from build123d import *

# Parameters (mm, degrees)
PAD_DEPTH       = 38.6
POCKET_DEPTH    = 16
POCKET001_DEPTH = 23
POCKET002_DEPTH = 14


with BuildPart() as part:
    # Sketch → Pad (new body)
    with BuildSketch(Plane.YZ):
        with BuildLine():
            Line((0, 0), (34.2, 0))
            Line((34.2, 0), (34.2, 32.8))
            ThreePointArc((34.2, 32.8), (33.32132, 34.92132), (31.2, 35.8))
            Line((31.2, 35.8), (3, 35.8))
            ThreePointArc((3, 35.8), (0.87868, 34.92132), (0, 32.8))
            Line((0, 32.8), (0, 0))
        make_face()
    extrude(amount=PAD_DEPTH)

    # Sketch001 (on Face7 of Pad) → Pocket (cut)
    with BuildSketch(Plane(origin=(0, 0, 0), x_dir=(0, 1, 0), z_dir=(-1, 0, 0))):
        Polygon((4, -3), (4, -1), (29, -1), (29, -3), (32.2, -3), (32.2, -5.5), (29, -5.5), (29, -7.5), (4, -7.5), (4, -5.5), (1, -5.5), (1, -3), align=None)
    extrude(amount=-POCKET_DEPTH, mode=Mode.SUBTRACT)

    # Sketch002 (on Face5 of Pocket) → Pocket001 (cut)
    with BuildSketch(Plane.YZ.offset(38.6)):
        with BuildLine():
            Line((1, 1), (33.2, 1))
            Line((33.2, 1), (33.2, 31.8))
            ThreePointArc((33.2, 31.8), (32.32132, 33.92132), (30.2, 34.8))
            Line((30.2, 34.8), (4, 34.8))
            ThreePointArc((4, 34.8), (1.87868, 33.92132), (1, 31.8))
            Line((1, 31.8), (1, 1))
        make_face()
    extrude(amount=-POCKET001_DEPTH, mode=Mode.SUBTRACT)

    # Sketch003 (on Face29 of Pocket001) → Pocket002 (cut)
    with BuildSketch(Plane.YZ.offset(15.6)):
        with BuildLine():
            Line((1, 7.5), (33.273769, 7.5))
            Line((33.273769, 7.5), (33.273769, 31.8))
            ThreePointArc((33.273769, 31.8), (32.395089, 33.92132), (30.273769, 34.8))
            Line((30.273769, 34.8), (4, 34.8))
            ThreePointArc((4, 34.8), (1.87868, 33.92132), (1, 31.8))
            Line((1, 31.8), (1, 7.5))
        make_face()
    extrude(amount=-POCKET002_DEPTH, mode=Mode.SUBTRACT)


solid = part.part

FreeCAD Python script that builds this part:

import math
import FreeCAD as App
import Part
import Sketcher

V = App.Vector
Q = App.Units.Quantity

doc = App.newDocument("Part")
params = doc.addObject("Spreadsheet::Sheet", "Params")
for row, (alias, value) in enumerate([
    ("sketch1_radius", "3.000001 mm"),
    ("sketch1_width", "34.2 mm"),
    ("sketch1_height", "32.8 mm"),
    ("pad1_length", "38.6 mm"),
    ("sketch2_width", "3 mm"),
    ("sketch2_width2", "25 mm"),
    ("sketch2_height", "2 mm"),
    ("sketch2_width3", "3.2 mm"),
    ("sketch2_height2", "2.5 mm"),
    ("pocket1_length", "16 mm"),
    ("sketch3_radius", "3.000001 mm"),
    ("sketch3_width", "32.2 mm"),
    ("sketch3_height", "30.8 mm"),
    ("pocket2_length", "23 mm"),
    ("sketch4_radius", "3.000001 mm"),
    ("sketch4_height", "24.3 mm"),
    ("pocket3_length", "14 mm"),
], start=1):
    params.set(f"A{row}", alias)
    params.set(f"B{row}", "=" + value)
    params.setAlias(f"B{row}", alias)

body = doc.addObject("PartDesign::Body", "Body")

sketch1 = body.newObject("Sketcher::SketchObject", "Sketch")
sketch1.AttachmentSupport = (doc.getObject("YZ_Plane"), [""])
sketch1.MapMode = "FlatFace"
sketch1.addGeometry(Part.LineSegment(V(0, 0, 0), V(34.2, 0, 0)), False)
sketch1.addGeometry(Part.LineSegment(V(34.2, 0, 0), V(34.2, 32.8, 0)), False)
sketch1.addGeometry(Part.ArcOfCircle(Part.Circle(V(31.199999, 32.799999, 0), V(0, 0, 1), 3.000001), math.radians(0.000022), math.radians(89.999978)), False)
sketch1.addGeometry(Part.LineSegment(V(31.2, 35.8, 0), V(3, 35.8, 0)), False)
sketch1.addGeometry(Part.ArcOfCircle(Part.Circle(V(3.000001, 32.799999, 0), V(0, 0, 1), 3.000001), math.radians(90.000022), math.radians(179.999978)), False)
sketch1.addGeometry(Part.LineSegment(V(0, 32.8, 0), V(0, 0, 0)), False)
sketch1.addConstraint(Sketcher.Constraint("Coincident", 0, 2, 1, 1))
sketch1.addConstraint(Sketcher.Constraint("Tangent", 1, 2, 2, 1))
sketch1.addConstraint(Sketcher.Constraint("Tangent", 2, 2, 3, 1))
sketch1.addConstraint(Sketcher.Constraint("Tangent", 3, 2, 4, 1))
sketch1.addConstraint(Sketcher.Constraint("Tangent", 4, 2, 5, 1))
sketch1.addConstraint(Sketcher.Constraint("Coincident", 5, 2, 0, 1))
sketch1.addConstraint(Sketcher.Constraint("Horizontal", 0))
sketch1.addConstraint(Sketcher.Constraint("Vertical", 1))
sketch1.addConstraint(Sketcher.Constraint("Horizontal", 3))
sketch1.addConstraint(Sketcher.Constraint("Vertical", 5))
sketch1.addConstraint(Sketcher.Constraint("Coincident", 5, 2, -1, 1))
sketch1.addConstraint(Sketcher.Constraint("Equal", 2, 4))
sketch1.addConstraint(Sketcher.Constraint("Radius", 2, Q("3.000001 mm")))
sketch1.addConstraint(Sketcher.Constraint("DistanceX", 0, 1, 0, 2, Q("34.2 mm")))
sketch1.addConstraint(Sketcher.Constraint("DistanceY", 1, 1, 1, 2, Q("32.8 mm")))
sketch1.setExpression("Constraints[12]", "Params.sketch1_radius")
sketch1.setExpression("Constraints[13]", "Params.sketch1_width")
sketch1.setExpression("Constraints[14]", "Params.sketch1_height")
pad1 = body.newObject("PartDesign::Pad", "Pad")
pad1.Profile = sketch1
pad1.setExpression("Length", "Params.pad1_length")

sketch2 = body.newObject("Sketcher::SketchObject", "Sketch001")
sketch2.AttachmentSupport = (doc.getObject("YZ_Plane"), [""])
sketch2.MapMode = "FlatFace"
sketch2.addGeometry(Part.LineSegment(V(4, 1, 0), V(4, 3, 0)), False)
sketch2.addGeometry(Part.LineSegment(V(4, 3, 0), V(1, 3, 0)), False)
sketch2.addGeometry(Part.LineSegment(V(1, 3, 0), V(1, 5.5, 0)), False)
sketch2.addGeometry(Part.LineSegment(V(1, 5.5, 0), V(4, 5.5, 0)), False)
sketch2.addGeometry(Part.LineSegment(V(4, 5.5, 0), V(4, 7.5, 0)), False)
sketch2.addGeometry(Part.LineSegment(V(4, 7.5, 0), V(29, 7.5, 0)), False)
sketch2.addGeometry(Part.LineSegment(V(29, 7.5, 0), V(29, 5.5, 0)), False)
sketch2.addGeometry(Part.LineSegment(V(29, 5.5, 0), V(32.2, 5.5, 0)), False)
sketch2.addGeometry(Part.LineSegment(V(32.2, 5.5, 0), V(32.2, 3, 0)), False)
sketch2.addGeometry(Part.LineSegment(V(32.2, 3, 0), V(29, 3, 0)), False)
sketch2.addGeometry(Part.LineSegment(V(29, 3, 0), V(29, 1, 0)), False)
sketch2.addGeometry(Part.LineSegment(V(29, 1, 0), V(4, 1, 0)), False)
sketch2.addConstraint(Sketcher.Constraint("Coincident", 0, 2, 1, 1))
sketch2.addConstraint(Sketcher.Constraint("Coincident", 1, 2, 2, 1))
sketch2.addConstraint(Sketcher.Constraint("Coincident", 2, 2, 3, 1))
sketch2.addConstraint(Sketcher.Constraint("Coincident", 3, 2, 4, 1))
sketch2.addConstraint(Sketcher.Constraint("Coincident", 4, 2, 5, 1))
sketch2.addConstraint(Sketcher.Constraint("Coincident", 5, 2, 6, 1))
sketch2.addConstraint(Sketcher.Constraint("Coincident", 6, 2, 7, 1))
sketch2.addConstraint(Sketcher.Constraint("Coincident", 7, 2, 8, 1))
sketch2.addConstraint(Sketcher.Constraint("Coincident", 8, 2, 9, 1))
sketch2.addConstraint(Sketcher.Constraint("Coincident", 9, 2, 10, 1))
sketch2.addConstraint(Sketcher.Constraint("Coincident", 10, 2, 11, 1))
sketch2.addConstraint(Sketcher.Constraint("Coincident", 11, 2, 0, 1))
sketch2.addConstraint(Sketcher.Constraint("Vertical", 0))
sketch2.addConstraint(Sketcher.Constraint("Horizontal", 1))
sketch2.addConstraint(Sketcher.Constraint("Vertical", 2))
sketch2.addConstraint(Sketcher.Constraint("Horizontal", 3))
sketch2.addConstraint(Sketcher.Constraint("Vertical", 4))
sketch2.addConstraint(Sketcher.Constraint("Horizontal", 5))
sketch2.addConstraint(Sketcher.Constraint("Vertical", 6))
sketch2.addConstraint(Sketcher.Constraint("Horizontal", 7))
sketch2.addConstraint(Sketcher.Constraint("Vertical", 8))
sketch2.addConstraint(Sketcher.Constraint("Horizontal", 9))
sketch2.addConstraint(Sketcher.Constraint("Vertical", 10))
sketch2.addConstraint(Sketcher.Constraint("Horizontal", 11))
sketch2.addConstraint(Sketcher.Constraint("Horizontal", 3, 2, 6, 2))
sketch2.addConstraint(Sketcher.Constraint("Horizontal", 1, 2, 8, 2))
sketch2.addConstraint(Sketcher.Constraint("Vertical", 0, 2, 3, 2))
sketch2.addConstraint(Sketcher.Constraint("Vertical", 6, 2, 9, 2))
sketch2.addConstraint(Sketcher.Constraint("Equal", 0, 4))
sketch2.addConstraint(Sketcher.Constraint("DistanceX", 1, 2, 1, 1, Q("3 mm")))
sketch2.addConstraint(Sketcher.Constraint("DistanceX", 5, 1, 5, 2, Q("25 mm")))
sketch2.addConstraint(Sketcher.Constraint("DistanceY", 0, 1, 0, 2, Q("2 mm")))
sketch2.addConstraint(Sketcher.Constraint("DistanceX", 7, 1, 7, 2, Q("3.2 mm")))
sketch2.addConstraint(Sketcher.Constraint("DistanceY", 2, 1, 2, 2, Q("2.5 mm")))
sketch2.addConstraint(Sketcher.Constraint("DistanceX", -1, 1, 0, 2, Q("4 mm")))
sketch2.addConstraint(Sketcher.Constraint("DistanceY", -1, 1, 0, 2, Q("3 mm")))
sketch2.setExpression("Constraints[29]", "Params.sketch2_width")
sketch2.setExpression("Constraints[30]", "Params.sketch2_width2")
sketch2.setExpression("Constraints[31]", "Params.sketch2_height")
sketch2.setExpression("Constraints[32]", "Params.sketch2_width3")
sketch2.setExpression("Constraints[33]", "Params.sketch2_height2")
pocket1 = body.newObject("PartDesign::Pocket", "Pocket")
pocket1.Profile = sketch2
pocket1.setExpression("Length", "Params.pocket1_length")
pocket1.Reversed = True

sketch3 = body.newObject("Sketcher::SketchObject", "Sketch002")
sketch3.AttachmentSupport = (doc.getObject("YZ_Plane"), [""])
sketch3.MapMode = "FlatFace"
sketch3.AttachmentOffset = App.Placement(V(0, 0, 38.6), App.Rotation())
sketch3.addGeometry(Part.LineSegment(V(1, 1, 0), V(33.2, 1, 0)), False)
sketch3.addGeometry(Part.LineSegment(V(33.2, 1, 0), V(33.2, 31.8, 0)), False)
sketch3.addGeometry(Part.ArcOfCircle(Part.Circle(V(30.199999, 31.799999, 0), V(0, 0, 1), 3.000001), math.radians(0.000022), math.radians(89.999978)), False)
sketch3.addGeometry(Part.LineSegment(V(30.2, 34.8, 0), V(4, 34.8, 0)), False)
sketch3.addGeometry(Part.ArcOfCircle(Part.Circle(V(4.000001, 31.799999, 0), V(0, 0, 1), 3.000001), math.radians(90.000022), math.radians(179.999978)), False)
sketch3.addGeometry(Part.LineSegment(V(1, 31.8, 0), V(1, 1, 0)), False)
sketch3.addConstraint(Sketcher.Constraint("Coincident", 0, 2, 1, 1))
sketch3.addConstraint(Sketcher.Constraint("Tangent", 1, 2, 2, 1))
sketch3.addConstraint(Sketcher.Constraint("Tangent", 2, 2, 3, 1))
sketch3.addConstraint(Sketcher.Constraint("Tangent", 3, 2, 4, 1))
sketch3.addConstraint(Sketcher.Constraint("Tangent", 4, 2, 5, 1))
sketch3.addConstraint(Sketcher.Constraint("Coincident", 5, 2, 0, 1))
sketch3.addConstraint(Sketcher.Constraint("Horizontal", 0))
sketch3.addConstraint(Sketcher.Constraint("Vertical", 1))
sketch3.addConstraint(Sketcher.Constraint("Horizontal", 3))
sketch3.addConstraint(Sketcher.Constraint("Vertical", 5))
sketch3.addConstraint(Sketcher.Constraint("Equal", 2, 4))
sketch3.addConstraint(Sketcher.Constraint("Radius", 2, Q("3.000001 mm")))
sketch3.addConstraint(Sketcher.Constraint("DistanceX", 0, 1, 0, 2, Q("32.2 mm")))
sketch3.addConstraint(Sketcher.Constraint("DistanceY", 1, 1, 1, 2, Q("30.8 mm")))
sketch3.addConstraint(Sketcher.Constraint("DistanceX", -1, 1, 4, 3, Q("4.000001 mm")))
sketch3.addConstraint(Sketcher.Constraint("DistanceY", -1, 1, 0, 2, Q("1 mm")))
sketch3.setExpression("Constraints[11]", "Params.sketch3_radius")
sketch3.setExpression("Constraints[12]", "Params.sketch3_width")
sketch3.setExpression("Constraints[13]", "Params.sketch3_height")
pocket2 = body.newObject("PartDesign::Pocket", "Pocket001")
pocket2.Profile = sketch3
pocket2.setExpression("Length", "Params.pocket2_length")

sketch4 = body.newObject("Sketcher::SketchObject", "Sketch003")
sketch4.AttachmentSupport = (doc.getObject("YZ_Plane"), [""])
sketch4.MapMode = "FlatFace"
sketch4.AttachmentOffset = App.Placement(V(0, 0, 15.6), App.Rotation())
sketch4.addGeometry(Part.LineSegment(V(1, 7.5, 0), V(33.273769, 7.5, 0)), False)
sketch4.addGeometry(Part.LineSegment(V(33.273769, 7.5, 0), V(33.273769, 31.8, 0)), False)
sketch4.addGeometry(Part.ArcOfCircle(Part.Circle(V(30.273768, 31.799999, 0), V(0, 0, 1), 3.000001), math.radians(0.000022), math.radians(89.999978)), False)
sketch4.addGeometry(Part.LineSegment(V(30.273769, 34.8, 0), V(4, 34.8, 0)), False)
sketch4.addGeometry(Part.ArcOfCircle(Part.Circle(V(4.000001, 31.799999, 0), V(0, 0, 1), 3.000001), math.radians(90.000022), math.radians(179.999978)), False)
sketch4.addGeometry(Part.LineSegment(V(1, 31.8, 0), V(1, 7.5, 0)), False)
sketch4.addConstraint(Sketcher.Constraint("Coincident", 0, 2, 1, 1))
sketch4.addConstraint(Sketcher.Constraint("Tangent", 1, 2, 2, 1))
sketch4.addConstraint(Sketcher.Constraint("Tangent", 2, 2, 3, 1))
sketch4.addConstraint(Sketcher.Constraint("Tangent", 3, 2, 4, 1))
sketch4.addConstraint(Sketcher.Constraint("Tangent", 4, 2, 5, 1))
sketch4.addConstraint(Sketcher.Constraint("Coincident", 5, 2, 0, 1))
sketch4.addConstraint(Sketcher.Constraint("Horizontal", 0))
sketch4.addConstraint(Sketcher.Constraint("Vertical", 1))
sketch4.addConstraint(Sketcher.Constraint("Horizontal", 3))
sketch4.addConstraint(Sketcher.Constraint("Vertical", 5))
sketch4.addConstraint(Sketcher.Constraint("Equal", 2, 4))
sketch4.addConstraint(Sketcher.Constraint("Radius", 2, Q("3.000001 mm")))
sketch4.addConstraint(Sketcher.Constraint("DistanceY", 1, 1, 1, 2, Q("24.3 mm")))
sketch4.addConstraint(Sketcher.Constraint("DistanceX", -1, 1, 4, 3, Q("4.000001 mm")))
sketch4.addConstraint(Sketcher.Constraint("DistanceY", -1, 1, 2, 3, Q("31.799999 mm")))
sketch4.addConstraint(Sketcher.Constraint("DistanceX", 0, 1, 0, 2, Q("32.273769 mm")))
sketch4.setExpression("Constraints[11]", "Params.sketch4_radius")
sketch4.setExpression("Constraints[12]", "Params.sketch4_height")
pocket3 = body.newObject("PartDesign::Pocket", "Pocket002")
pocket3.Profile = sketch4
pocket3.setExpression("Length", "Params.pocket3_length")

doc.recompute()
